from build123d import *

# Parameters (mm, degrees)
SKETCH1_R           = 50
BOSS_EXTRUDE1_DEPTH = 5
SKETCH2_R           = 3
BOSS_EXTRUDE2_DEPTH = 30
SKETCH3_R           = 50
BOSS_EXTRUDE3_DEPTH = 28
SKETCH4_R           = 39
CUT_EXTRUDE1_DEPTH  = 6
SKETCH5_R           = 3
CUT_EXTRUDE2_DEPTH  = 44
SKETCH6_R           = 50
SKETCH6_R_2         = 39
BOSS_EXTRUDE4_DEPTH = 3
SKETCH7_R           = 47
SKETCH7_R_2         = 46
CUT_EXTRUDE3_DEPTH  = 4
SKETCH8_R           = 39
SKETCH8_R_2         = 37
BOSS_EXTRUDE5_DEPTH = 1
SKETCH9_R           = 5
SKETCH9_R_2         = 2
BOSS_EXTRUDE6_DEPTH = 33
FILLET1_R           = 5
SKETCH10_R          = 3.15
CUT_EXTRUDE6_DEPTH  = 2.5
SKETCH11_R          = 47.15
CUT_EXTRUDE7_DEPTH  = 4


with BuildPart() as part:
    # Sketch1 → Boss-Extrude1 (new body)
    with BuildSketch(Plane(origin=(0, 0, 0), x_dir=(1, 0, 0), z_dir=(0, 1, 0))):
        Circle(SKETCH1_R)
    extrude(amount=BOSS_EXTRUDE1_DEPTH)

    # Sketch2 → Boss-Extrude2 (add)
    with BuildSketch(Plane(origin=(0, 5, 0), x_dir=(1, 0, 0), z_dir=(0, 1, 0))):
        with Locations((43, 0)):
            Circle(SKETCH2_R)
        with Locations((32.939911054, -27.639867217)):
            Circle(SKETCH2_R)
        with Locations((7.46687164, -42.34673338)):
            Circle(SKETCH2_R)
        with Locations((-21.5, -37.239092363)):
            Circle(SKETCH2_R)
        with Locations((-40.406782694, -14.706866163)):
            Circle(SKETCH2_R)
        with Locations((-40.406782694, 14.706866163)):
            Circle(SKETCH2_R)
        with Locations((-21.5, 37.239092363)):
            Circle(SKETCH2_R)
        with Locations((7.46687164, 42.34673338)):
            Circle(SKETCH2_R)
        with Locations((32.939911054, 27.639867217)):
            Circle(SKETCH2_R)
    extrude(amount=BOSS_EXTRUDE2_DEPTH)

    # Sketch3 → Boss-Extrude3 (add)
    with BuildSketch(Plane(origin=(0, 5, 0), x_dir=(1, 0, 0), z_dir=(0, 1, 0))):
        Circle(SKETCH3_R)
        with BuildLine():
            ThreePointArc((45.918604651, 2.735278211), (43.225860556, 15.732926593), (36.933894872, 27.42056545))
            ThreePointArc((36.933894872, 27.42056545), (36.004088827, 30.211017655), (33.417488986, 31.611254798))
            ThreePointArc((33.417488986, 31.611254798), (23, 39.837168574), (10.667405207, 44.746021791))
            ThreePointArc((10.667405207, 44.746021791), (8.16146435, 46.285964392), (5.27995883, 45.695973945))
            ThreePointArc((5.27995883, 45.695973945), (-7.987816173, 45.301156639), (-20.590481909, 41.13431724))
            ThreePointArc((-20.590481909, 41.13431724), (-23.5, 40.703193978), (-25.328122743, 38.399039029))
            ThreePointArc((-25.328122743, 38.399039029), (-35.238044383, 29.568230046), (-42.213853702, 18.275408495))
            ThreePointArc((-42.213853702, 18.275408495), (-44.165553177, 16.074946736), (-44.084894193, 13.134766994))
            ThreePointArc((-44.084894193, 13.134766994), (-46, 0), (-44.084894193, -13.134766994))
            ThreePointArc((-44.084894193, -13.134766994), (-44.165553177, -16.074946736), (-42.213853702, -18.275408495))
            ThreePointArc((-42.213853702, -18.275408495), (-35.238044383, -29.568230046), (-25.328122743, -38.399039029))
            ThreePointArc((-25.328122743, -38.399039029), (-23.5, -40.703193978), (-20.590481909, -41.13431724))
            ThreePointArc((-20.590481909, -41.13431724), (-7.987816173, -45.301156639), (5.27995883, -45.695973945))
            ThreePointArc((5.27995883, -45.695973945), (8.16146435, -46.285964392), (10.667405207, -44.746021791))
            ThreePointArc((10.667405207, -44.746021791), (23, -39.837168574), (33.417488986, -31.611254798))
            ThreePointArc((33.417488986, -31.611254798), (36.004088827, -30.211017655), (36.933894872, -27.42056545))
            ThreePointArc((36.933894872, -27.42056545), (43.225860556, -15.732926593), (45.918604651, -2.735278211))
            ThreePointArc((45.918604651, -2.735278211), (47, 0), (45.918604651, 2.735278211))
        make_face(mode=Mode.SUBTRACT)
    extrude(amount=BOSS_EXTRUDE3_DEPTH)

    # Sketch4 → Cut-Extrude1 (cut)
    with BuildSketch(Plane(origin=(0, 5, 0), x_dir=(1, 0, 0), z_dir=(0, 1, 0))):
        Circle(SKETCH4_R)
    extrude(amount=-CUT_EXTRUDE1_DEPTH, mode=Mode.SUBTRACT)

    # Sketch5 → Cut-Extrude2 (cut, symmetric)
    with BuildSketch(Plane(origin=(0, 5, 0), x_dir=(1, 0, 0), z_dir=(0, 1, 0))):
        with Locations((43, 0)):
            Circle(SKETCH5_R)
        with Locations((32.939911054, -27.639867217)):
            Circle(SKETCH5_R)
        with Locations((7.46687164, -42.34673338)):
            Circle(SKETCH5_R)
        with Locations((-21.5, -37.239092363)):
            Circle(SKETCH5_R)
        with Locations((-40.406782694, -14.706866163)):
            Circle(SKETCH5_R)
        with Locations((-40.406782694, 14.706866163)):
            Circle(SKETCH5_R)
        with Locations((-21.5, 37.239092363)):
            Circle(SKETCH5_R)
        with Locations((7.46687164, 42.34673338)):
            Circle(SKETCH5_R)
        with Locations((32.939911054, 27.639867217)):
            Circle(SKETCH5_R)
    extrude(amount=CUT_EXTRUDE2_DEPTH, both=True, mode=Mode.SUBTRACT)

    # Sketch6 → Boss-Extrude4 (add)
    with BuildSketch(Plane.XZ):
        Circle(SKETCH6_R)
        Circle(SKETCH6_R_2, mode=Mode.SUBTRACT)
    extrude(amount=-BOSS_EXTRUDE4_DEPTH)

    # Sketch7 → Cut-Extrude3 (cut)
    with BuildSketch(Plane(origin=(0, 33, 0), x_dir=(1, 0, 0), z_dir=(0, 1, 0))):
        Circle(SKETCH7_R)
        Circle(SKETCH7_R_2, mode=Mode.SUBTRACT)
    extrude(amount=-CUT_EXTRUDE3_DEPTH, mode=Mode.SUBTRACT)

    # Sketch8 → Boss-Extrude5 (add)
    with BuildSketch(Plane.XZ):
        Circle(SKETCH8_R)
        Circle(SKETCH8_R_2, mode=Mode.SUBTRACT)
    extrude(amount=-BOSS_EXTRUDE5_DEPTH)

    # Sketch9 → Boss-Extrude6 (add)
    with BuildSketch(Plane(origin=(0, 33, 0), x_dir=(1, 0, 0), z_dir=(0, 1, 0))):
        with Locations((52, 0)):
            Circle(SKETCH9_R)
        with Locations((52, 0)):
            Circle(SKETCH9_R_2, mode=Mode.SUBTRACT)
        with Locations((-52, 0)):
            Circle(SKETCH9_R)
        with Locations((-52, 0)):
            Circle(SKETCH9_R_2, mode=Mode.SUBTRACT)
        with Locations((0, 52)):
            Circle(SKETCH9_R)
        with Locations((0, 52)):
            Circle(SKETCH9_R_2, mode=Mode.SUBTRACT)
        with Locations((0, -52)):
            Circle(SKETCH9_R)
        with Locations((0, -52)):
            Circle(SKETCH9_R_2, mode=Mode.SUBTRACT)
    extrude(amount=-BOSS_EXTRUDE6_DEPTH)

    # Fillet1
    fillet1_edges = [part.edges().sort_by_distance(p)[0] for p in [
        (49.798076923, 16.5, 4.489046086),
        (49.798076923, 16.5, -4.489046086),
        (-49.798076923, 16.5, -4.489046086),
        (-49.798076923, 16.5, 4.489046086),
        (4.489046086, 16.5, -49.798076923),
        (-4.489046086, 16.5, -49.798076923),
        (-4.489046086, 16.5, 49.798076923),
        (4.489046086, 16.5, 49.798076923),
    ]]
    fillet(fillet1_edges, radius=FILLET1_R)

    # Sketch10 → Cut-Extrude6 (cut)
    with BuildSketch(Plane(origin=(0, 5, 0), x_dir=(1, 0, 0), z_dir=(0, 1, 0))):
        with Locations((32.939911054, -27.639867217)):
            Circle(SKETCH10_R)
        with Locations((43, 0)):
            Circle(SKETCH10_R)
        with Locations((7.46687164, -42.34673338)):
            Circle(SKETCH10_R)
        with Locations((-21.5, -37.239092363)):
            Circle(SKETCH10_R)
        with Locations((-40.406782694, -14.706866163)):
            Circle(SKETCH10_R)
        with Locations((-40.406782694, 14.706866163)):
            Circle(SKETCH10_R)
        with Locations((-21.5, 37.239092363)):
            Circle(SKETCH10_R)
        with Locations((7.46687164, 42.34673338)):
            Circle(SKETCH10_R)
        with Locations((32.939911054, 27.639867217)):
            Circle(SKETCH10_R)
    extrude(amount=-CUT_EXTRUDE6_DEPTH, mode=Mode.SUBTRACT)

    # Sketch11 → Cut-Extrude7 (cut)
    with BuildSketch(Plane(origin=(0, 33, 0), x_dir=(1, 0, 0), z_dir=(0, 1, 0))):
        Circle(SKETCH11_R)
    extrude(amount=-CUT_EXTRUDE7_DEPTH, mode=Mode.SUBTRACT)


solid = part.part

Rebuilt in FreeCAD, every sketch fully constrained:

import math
import FreeCAD as App
import Part
import Sketcher

V = App.Vector
Q = App.Units.Quantity


def edges_at(feature, points):
    """Names of the edges that pass closest to the given points."""
    edges = feature.Shape.Edges
    near = lambda p: min(range(len(edges)), key=lambda i: edges[i].distToShape(Part.Vertex(*p))[0])
    return sorted({f"Edge{near(p) + 1}" for p in points})

doc = App.newDocument("Part")
params = doc.addObject("Spreadsheet::Sheet", "Params")
for row, (alias, value) in enumerate([
    ("sketch1_diameter", "100 mm"),
    ("pad1_length", "5 mm"),
    ("sketch2_diameter", "6 mm"),
    ("pad2_length", "30 mm"),
    ("sketch3_diameter", "100 mm"),
    ("sketch3_radius", "46 mm"),
    ("sketch3_radius2", "4 mm"),
    ("pad3_length", "28 mm"),
    ("sketch4_diameter", "78 mm"),
    ("pocket1_length", "6 mm"),
    ("sketch5_diameter", "6 mm"),
    ("pocket2_length", "88 mm"),
    ("sketch6_diameter", "100 mm"),
    ("sketch6_diameter2", "78 mm"),
    ("pad4_length", "3 mm"),
    ("sketch7_diameter", "94 mm"),
    ("sketch7_diameter2", "92 mm"),
    ("pocket3_length", "4 mm"),
    ("sketch8_diameter", "78 mm"),
    ("sketch8_diameter2", "74 mm"),
    ("pad5_length", "1 mm"),
    ("sketch9_diameter", "10 mm"),
    ("sketch9_diameter2", "4 mm"),
    ("pad6_length", "33 mm"),
    ("fillet_radius", "5 mm"),
    ("sketch10_diameter", "6.3 mm"),
    ("pocket4_length", "2.5 mm"),
    ("sketch11_diameter", "94.3 mm"),
    ("pocket5_length", "4 mm"),
], start=1):
    params.set(f"A{row}", alias)
    params.set(f"B{row}", "=" + value)
    params.setAlias(f"B{row}", alias)

body = doc.addObject("PartDesign::Body", "Body")

sketch1 = body.newObject("Sketcher::SketchObject", "Sketch")
sketch1.AttachmentSupport = (doc.getObject("XZ_Plane"), [""])
sketch1.MapMode = "FlatFace"
sketch1.addGeometry(Part.Circle(V(0, 0, 0), V(0, 0, 1), 50), False)
sketch1.addConstraint([
    Sketcher.Constraint("Coincident", 0, 3, -1, 1),
    Sketcher.Constraint("Diameter", 0, Q("100 mm")),
])
sketch1.setExpression("Constraints[1]", "Params.sketch1_diameter")
pad1 = body.newObject("PartDesign::Pad", "Pad")
pad1.Profile = sketch1
pad1.setExpression("Length", "Params.pad1_length")
pad1.Reversed = True

sketch2 = body.newObject("Sketcher::SketchObject", "Sketch001")
sketch2.AttachmentSupport = (doc.getObject("XZ_Plane"), [""])
sketch2.MapMode = "FlatFace"
sketch2.AttachmentOffset = App.Placement(V(0, 0, -5), App.Rotation())
sketch2.addGeometry([
    Part.Circle(V(43, 0, 0), V(0, 0, 1), 3),
    Part.Circle(V(32.9, 27.6, 0), V(0, 0, 1), 3),
    Part.Circle(V(7.5, 42.3, 0), V(0, 0, 1), 3),
    Part.Circle(V(-21.5, 37.2, 0), V(0, 0, 1), 3),
    Part.Circle(V(-40.4, 14.7, 0), V(0, 0, 1), 3),
    Part.Circle(V(-40.4, -14.7, 0), V(0, 0, 1), 3),
    Part.Circle(V(-21.5, -37.2, 0), V(0, 0, 1), 3),
    Part.Circle(V(7.5, -42.3, 0), V(0, 0, 1), 3),
    Part.Circle(V(32.9, -27.6, 0), V(0, 0, 1), 3),
], False)
sketch2.addConstraint([
    Sketcher.Constraint("Equal", 0, 1),
    Sketcher.Constraint("Equal", 1, 2),
    Sketcher.Constraint("Equal", 2, 3),
    Sketcher.Constraint("Equal", 3, 4),
    Sketcher.Constraint("Equal", 4, 5),
    Sketcher.Constraint("Equal", 5, 6),
    Sketcher.Constraint("Equal", 6, 7),
    Sketcher.Constraint("Equal", 7, 8),
    Sketcher.Constraint("Symmetric", 4, 3, 5, 3, -1),
    Sketcher.Constraint("Symmetric", 3, 3, 6, 3, -1),
    Sketcher.Constraint("Symmetric", 2, 3, 7, 3, -1),
    Sketcher.Constraint("Symmetric", 1, 3, 8, 3, -1),
    Sketcher.Constraint("PointOnObject", 0, 3, -1),
    Sketcher.Constraint("Diameter", 0, Q("6 mm")),
    Sketcher.Constraint("DistanceX", -1, 1, 0, 3, Q("43 mm")),
    Sketcher.Constraint("DistanceX", 3, 3, -1, 1, Q("21.5 mm")),
    Sketcher.Constraint("DistanceY", 4, 3, 1, 3, Q("12.933001 mm")),
    Sketcher.Constraint("DistanceY", 5, 3, 2, 3, Q("57.0536 mm")),
    Sketcher.Constraint("DistanceX", -1, 1, 1, 3, Q("32.939911 mm")),
    Sketcher.Constraint("DistanceX", -1, 1, 2, 3, Q("7.466872 mm")),
    Sketcher.Constraint("DistanceY", 3, 3, 2, 3, Q("5.107641 mm")),
    Sketcher.Constraint("DistanceY", -1, 1, 1, 3, Q("27.639867 mm")),
    Sketcher.Constraint("DistanceX", 4, 3, -1, 1, Q("40.406783 mm")),
])
sketch2.setExpression("Constraints[13]", "Params.sketch2_diameter")
pad2 = body.newObject("PartDesign::Pad", "Pad001")
pad2.Profile = sketch2
pad2.setExpression("Length", "Params.pad2_length")
pad2.Reversed = True

sketch3 = body.newObject("Sketcher::SketchObject", "Sketch002")
sketch3.AttachmentSupport = (doc.getObject("XZ_Plane"), [""])
sketch3.MapMode = "FlatFace"
sketch3.AttachmentOffset = App.Placement(V(0, 0, -5), App.Rotation())
sketch3.addGeometry([
    Part.Circle(V(0, 0, 0), V(0, 0, 1), 50),
    Part.ArcOfCircle(Part.Circle(V(0, 0, 0), V(0, 0, 1), 46), math.radians(-37), math.radians(-3)),
    Part.ArcOfCircle(Part.Circle(V(43, 0, 0), V(0, 0, 1), 4), math.radians(-43), math.radians(43)),
    Part.ArcOfCircle(Part.Circle(V(0, 0, 0), V(0, 0, 1), 46), math.radians(3), math.radians(37)),
    Part.ArcOfCircle(Part.Circle(V(32.9, 27.6, 0), V(0, 0, 1), 4), math.radians(-3), math.radians(83)),
    Part.ArcOfCircle(Part.Circle(V(0, 0, 0), V(0, 0, 1), 46), math.radians(43), math.radians(77)),
    Part.ArcOfCircle(Part.Circle(V(7.5, 42.3, 0), V(0, 0, 1), 4), math.radians(37), math.radians(123)),
    Part.ArcOfCircle(Part.Circle(V(0, 0, 0), V(0, 0, 1), 46), math.radians(83), math.radians(117)),
    Part.ArcOfCircle(Part.Circle(V(-21.5, 37.2, 0), V(0, 0, 1), 4), math.radians(77), math.radians(163)),
    Part.ArcOfCircle(Part.Circle(V(0, 0, 0), V(0, 0, 1), 46), math.radians(123), math.radians(157)),
    Part.ArcOfCircle(Part.Circle(V(-40.4, 14.7, 0), V(0, 0, 1), 4), math.radians(117), math.radians(203)),
    Part.ArcOfCircle(Part.Circle(V(0, 0, 0), V(0, 0, 1), 46), math.radians(163), math.radians(197)),
    Part.ArcOfCircle(Part.Circle(V(-40.4, -14.7, 0), V(0, 0, 1), 4), math.radians(157), math.radians(243)),
    Part.ArcOfCircle(Part.Circle(V(0, 0, 0), V(0, 0, 1), 46), math.radians(-157), math.radians(-123)),
    Part.ArcOfCircle(Part.Circle(V(-21.5, -37.2, 0), V(0, 0, 1), 4), math.radians(-163), math.radians(-77)),
    Part.ArcOfCircle(Part.Circle(V(0, 0, 0), V(0, 0, 1), 46), math.radians(-117), math.radians(-83)),
    Part.ArcOfCircle(Part.Circle(V(7.5, -42.3, 0), V(0, 0, 1), 4), math.radians(-123), math.radians(-37)),
    Part.ArcOfCircle(Part.Circle(V(0, 0, 0), V(0, 0, 1), 46), math.radians(-77), math.radians(-43)),
    Part.ArcOfCircle(Part.Circle(V(32.9, -27.6, 0), V(0, 0, 1), 4), math.radians(-83), math.radians(3)),
], False)
sketch3.addConstraint([
    Sketcher.Constraint("Coincident", 1, 2, 2, 1),
    Sketcher.Constraint("Coincident", 2, 2, 3, 1),
    Sketcher.Constraint("Coincident", 3, 2, 4, 1),
    Sketcher.Constraint("Coincident", 4, 2, 5, 1),
    Sketcher.Constraint("Coincident", 5, 2, 6, 1),
    Sketcher.Constraint("Coincident", 6, 2, 7, 1),
    Sketcher.Constraint("Coincident", 7, 2, 8, 1),
    Sketcher.Constraint("Coincident", 8, 2, 9, 1),
    Sketcher.Constraint("Coincident", 9, 2, 10, 1),
    Sketcher.Constraint("Coincident", 10, 2, 11, 1),
    Sketcher.Constraint("Coincident", 11, 2, 12, 1),
    Sketcher.Constraint("Coincident", 12, 2, 13, 1),
    Sketcher.Constraint("Coincident", 13, 2, 14, 1),
    Sketcher.Constraint("Coincident", 14, 2, 15, 1),
    Sketcher.Constraint("Coincident", 15, 2, 16, 1),
    Sketcher.Constraint("Coincident", 16, 2, 17, 1),
    Sketcher.Constraint("Coincident", 17, 2, 18, 1),
    Sketcher.Constraint("Coincident", 18, 2, 1, 1),
    Sketcher.Constraint("Coincident", 0, 3, -1, 1),
    Sketcher.Constraint("Coincident", 1, 3, -1, 1),
    Sketcher.Constraint("Coincident", 3, 3, -1, 1),
    Sketcher.Constraint("Coincident", 5, 3, -1, 1),
    Sketcher.Constraint("Coincident", 7, 3, -1, 1),
    Sketcher.Constraint("Coincident", 9, 3, -1, 1),
    Sketcher.Constraint("Coincident", 11, 3, -1, 1),
    Sketcher.Constraint("Coincident", 13, 3, -1, 1),
    Sketcher.Constraint("Coincident", 15, 3, -1, 1),
    Sketcher.Constraint("Coincident", 17, 3, -1, 1),
    Sketcher.Constraint("Equal", 1, 3),
    Sketcher.Constraint("Equal", 2, 4),
    Sketcher.Constraint("Equal", 3, 5),
    Sketcher.Constraint("Equal", 4, 6),
    Sketcher.Constraint("Equal", 5, 7),
    Sketcher.Constraint("Equal", 6, 8),
    Sketcher.Constraint("Equal", 7, 9),
    Sketcher.Constraint("Equal", 8, 10),
    Sketcher.Constraint("Equal", 9, 11),
    Sketcher.Constraint("Equal", 10, 12),
    Sketcher.Constraint("Equal", 11, 13),
    Sketcher.Constraint("Equal", 12, 14),
    Sketcher.Constraint("Equal", 13, 15),
    Sketcher.Constraint("Equal", 14, 16),
    Sketcher.Constraint("Equal", 15, 17),
    Sketcher.Constraint("Equal", 16, 18),
    Sketcher.Constraint("Symmetric", 10, 3, 12, 3, -1),
    Sketcher.Constraint("Symmetric", 8, 3, 14, 3, -1),
    Sketcher.Constraint("Symmetric", 6, 3, 16, 3, -1),
    Sketcher.Constraint("Symmetric", 4, 3, 18, 3, -1),
    Sketcher.Constraint("PointOnObject", 2, 3, -1),
    Sketcher.Constraint("Diameter", 0, Q("100 mm")),
    Sketcher.Constraint("Radius", 1, Q("46 mm")),
    Sketcher.Constraint("Radius", 2, Q("4 mm")),
    Sketcher.Constraint("DistanceX", -1, 1, 2, 3, Q("43 mm")),
    Sketcher.Constraint("DistanceX", 8, 3, -1, 1, Q("21.5 mm")),
    Sketcher.Constraint("DistanceY", 3, 2, 4, 3, Q("0.219302 mm")),
    Sketcher.Constraint("DistanceX", 10, 3, 7, 2, Q("19.816301 mm")),
    Sketcher.Constraint("DistanceY", 10, 2, 10, 3, Q("1.572099 mm")),
    Sketcher.Constraint("DistanceX", -1, 1, 4, 3, Q("32.939911 mm")),
    Sketcher.Constraint("DistanceX", -1, 1, 6, 3, Q("7.466872 mm")),
    Sketcher.Constraint("DistanceY", -1, 1, 5, 2, Q("44.746022 mm")),
    Sketcher.Constraint("DistanceX", 7, 2, -1, 1, Q("20.590482 mm")),
])
sketch3.setExpression("Constraints[49]", "Params.sketch3_diameter")
sketch3.setExpression("Constraints[50]", "Params.sketch3_radius")
sketch3.setExpression("Constraints[51]", "Params.sketch3_radius2")
pad3 = body.newObject("PartDesign::Pad", "Pad002")
pad3.Profile = sketch3
pad3.setExpression("Length", "Params.pad3_length")
pad3.Reversed = True

sketch4 = body.newObject("Sketcher::SketchObject", "Sketch003")
sketch4.AttachmentSupport = (doc.getObject("XZ_Plane"), [""])
sketch4.MapMode = "FlatFace"
sketch4.AttachmentOffset = App.Placement(V(0, 0, -5), App.Rotation())
sketch4.addGeometry(Part.Circle(V(0, 0, 0), V(0, 0, 1), 39), False)
sketch4.addConstraint([
    Sketcher.Constraint("Coincident", 0, 3, -1, 1),
    Sketcher.Constraint("Diameter", 0, Q("78 mm")),
])
sketch4.setExpression("Constraints[1]", "Params.sketch4_diameter")
pocket1 = body.newObject("PartDesign::Pocket", "Pocket")
pocket1.Profile = sketch4
pocket1.setExpression("Length", "Params.pocket1_length")
pocket1.Reversed = True

sketch5 = body.newObject("Sketcher::SketchObject", "Sketch004")
sketch5.AttachmentSupport = (doc.getObject("XZ_Plane"), [""])
sketch5.MapMode = "FlatFace"
sketch5.AttachmentOffset = App.Placement(V(0, 0, -5), App.Rotation())
sketch5.addGeometry([
    Part.Circle(V(43, 0, 0), V(0, 0, 1), 3),
    Part.Circle(V(32.9, 27.6, 0), V(0, 0, 1), 3),
    Part.Circle(V(7.5, 42.3, 0), V(0, 0, 1), 3),
    Part.Circle(V(-21.5, 37.2, 0), V(0, 0, 1), 3),
    Part.Circle(V(-40.4, 14.7, 0), V(0, 0, 1), 3),
    Part.Circle(V(-40.4, -14.7, 0), V(0, 0, 1), 3),
    Part.Circle(V(-21.5, -37.2, 0), V(0, 0, 1), 3),
    Part.Circle(V(7.5, -42.3, 0), V(0, 0, 1), 3),
    Part.Circle(V(32.9, -27.6, 0), V(0, 0, 1), 3),
], False)
sketch5.addConstraint([
    Sketcher.Constraint("Equal", 0, 1),
    Sketcher.Constraint("Equal", 1, 2),
    Sketcher.Constraint("Equal", 2, 3),
    Sketcher.Constraint("Equal", 3, 4),
    Sketcher.Constraint("Equal", 4, 5),
    Sketcher.Constraint("Equal", 5, 6),
    Sketcher.Constraint("Equal", 6, 7),
    Sketcher.Constraint("Equal", 7, 8),
    Sketcher.Constraint("Symmetric", 4, 3, 5, 3, -1),
    Sketcher.Constraint("Symmetric", 3, 3, 6, 3, -1),
    Sketcher.Constraint("Symmetric", 2, 3, 7, 3, -1),
    Sketcher.Constraint("Symmetric", 1, 3, 8, 3, -1),
    Sketcher.Constraint("PointOnObject", 0, 3, -1),
    Sketcher.Constraint("Diameter", 0, Q("6 mm")),
    Sketcher.Constraint("DistanceX", -1, 1, 0, 3, Q("43 mm")),
    Sketcher.Constraint("DistanceX", 3, 3, -1, 1, Q("21.5 mm")),
    Sketcher.Constraint("DistanceY", 4, 3, 1, 3, Q("12.933001 mm")),
    Sketcher.Constraint("DistanceY", 5, 3, 2, 3, Q("57.0536 mm")),
    Sketcher.Constraint("DistanceX", -1, 1, 1, 3, Q("32.939911 mm")),
    Sketcher.Constraint("DistanceX", -1, 1, 2, 3, Q("7.466872 mm")),
    Sketcher.Constraint("DistanceY", 3, 3, 2, 3, Q("5.107641 mm")),
    Sketcher.Constraint("DistanceY", -1, 1, 1, 3, Q("27.639867 mm")),
    Sketcher.Constraint("DistanceX", 4, 3, -1, 1, Q("40.406783 mm")),
])
sketch5.setExpression("Constraints[13]", "Params.sketch5_diameter")
pocket2 = body.newObject("PartDesign::Pocket", "Pocket001")
pocket2.Profile = sketch5
pocket2.setExpression("Length", "Params.pocket2_length")
pocket2.Midplane = True

sketch6 = body.newObject("Sketcher::SketchObject", "Sketch005")
sketch6.AttachmentSupport = (doc.getObject("XZ_Plane"), [""])
sketch6.MapMode = "FlatFace"
sketch6.addGeometry([
    Part.Circle(V(0, 0, 0), V(0, 0, 1), 50),
    Part.Circle(V(0, 0, 0), V(0, 0, 1), 39),
], False)
sketch6.addConstraint([
    Sketcher.Constraint("Coincident", 0, 3, -1, 1),
    Sketcher.Constraint("Coincident", 1, 3, -1, 1),
    Sketcher.Constraint("Diameter", 0, Q("100 mm")),
    Sketcher.Constraint("Diameter", 1, Q("78 mm")),
])
sketch6.setExpression("Constraints[2]", "Params.sketch6_diameter")
sketch6.setExpression("Constraints[3]", "Params.sketch6_diameter2")
pad4 = body.newObject("PartDesign::Pad", "Pad003")
pad4.Profile = sketch6
pad4.setExpression("Length", "Params.pad4_length")
pad4.Reversed = True

sketch7 = body.newObject("Sketcher::SketchObject", "Sketch006")
sketch7.AttachmentSupport = (doc.getObject("XZ_Plane"), [""])
sketch7.MapMode = "FlatFace"
sketch7.AttachmentOffset = App.Placement(V(0, 0, -33), App.Rotation())
sketch7.addGeometry([
    Part.Circle(V(0, 0, 0), V(0, 0, 1), 47),
    Part.Circle(V(0, 0, 0), V(0, 0, 1), 46),
], False)
sketch7.addConstraint([
    Sketcher.Constraint("Coincident", 0, 3, -1, 1),
    Sketcher.Constraint("Coincident", 1, 3, -1, 1),
    Sketcher.Constraint("Diameter", 0, Q("94 mm")),
    Sketcher.Constraint("Diameter", 1, Q("92 mm")),
])
sketch7.setExpression("Constraints[2]", "Params.sketch7_diameter")
sketch7.setExpression("Constraints[3]", "Params.sketch7_diameter2")
pocket3 = body.newObject("PartDesign::Pocket", "Pocket002")
pocket3.Profile = sketch7
pocket3.setExpression("Length", "Params.pocket3_length")
pocket3.Reversed = True

sketch8 = body.newObject("Sketcher::SketchObject", "Sketch007")
sketch8.AttachmentSupport = (doc.getObject("XZ_Plane"), [""])
sketch8.MapMode = "FlatFace"
sketch8.addGeometry([
    Part.Circle(V(0, 0, 0), V(0, 0, 1), 39),
    Part.Circle(V(0, 0, 0), V(0, 0, 1), 37),
], False)
sketch8.addConstraint([
    Sketcher.Constraint("Coincident", 0, 3, -1, 1),
    Sketcher.Constraint("Coincident", 1, 3, -1, 1),
    Sketcher.Constraint("Diameter", 0, Q("78 mm")),
    Sketcher.Constraint("Diameter", 1, Q("74 mm")),
])
sketch8.setExpression("Constraints[2]", "Params.sketch8_diameter")
sketch8.setExpression("Constraints[3]", "Params.sketch8_diameter2")
pad5 = body.newObject("PartDesign::Pad", "Pad004")
pad5.Profile = sketch8
pad5.setExpression("Length", "Params.pad5_length")
pad5.Reversed = True

sketch9 = body.newObject("Sketcher::SketchObject", "Sketch008")
sketch9.AttachmentSupport = (doc.getObject("XZ_Plane"), [""])
sketch9.MapMode = "FlatFace"
sketch9.AttachmentOffset = App.Placement(V(0, 0, -33), App.Rotation())
sketch9.addGeometry([
    Part.Circle(V(52, 0, 0), V(0, 0, 1), 5),
    Part.Circle(V(52, 0, 0), V(0, 0, 1), 2),
    Part.Circle(V(-52, 0, 0), V(0, 0, 1), 5),
    Part.Circle(V(-52, 0, 0), V(0, 0, 1), 2),
    Part.Circle(V(0, -52, 0), V(0, 0, 1), 5),
    Part.Circle(V(0, -52, 0), V(0, 0, 1), 2),
    Part.Circle(V(0, 52, 0), V(0, 0, 1), 5),
    Part.Circle(V(0, 52, 0), V(0, 0, 1), 2),
], False)
sketch9.addConstraint([
    Sketcher.Constraint("Coincident", 1, 3, 0, 3),
    Sketcher.Constraint("Coincident", 3, 3, 2, 3),
    Sketcher.Constraint("Coincident", 5, 3, 4, 3),
    Sketcher.Constraint("Coincident", 7, 3, 6, 3),
    Sketcher.Constraint("Equal", 0, 2),
    Sketcher.Constraint("Equal", 1, 3),
    Sketcher.Constraint("Equal", 2, 4),
    Sketcher.Constraint("Equal", 3, 5),
    Sketcher.Constraint("Equal", 4, 6),
    Sketcher.Constraint("Equal", 5, 7),
    Sketcher.Constraint("Symmetric", 0, 3, 2, 3, -1, 1),
    Sketcher.Constraint("Symmetric", 4, 3, 6, 3, -1, 1),
    Sketcher.Constraint("PointOnObject", 0, 3, -1),
    Sketcher.Constraint("PointOnObject", 4, 3, -2),
    Sketcher.Constraint("Diameter", 0, Q("10 mm")),
    Sketcher.Constraint("Diameter", 1, Q("4 mm")),
    Sketcher.Constraint("DistanceX", -1, 1, 0, 3, Q("52 mm")),
    Sketcher.Constraint("DistanceY", 4, 3, -1, 1, Q("52 mm")),
])
sketch9.setExpression("Constraints[14]", "Params.sketch9_diameter")
sketch9.setExpression("Constraints[15]", "Params.sketch9_diameter2")
pad6 = body.newObject("PartDesign::Pad", "Pad005")
pad6.Profile = sketch9
pad6.setExpression("Length", "Params.pad6_length")
doc.recompute()

fillet = body.newObject("PartDesign::Fillet", "Fillet")
fillet.Base = (pad6, edges_at(pad6, [
    (49.798, 16.5, 4.489),
    (49.798, 16.5, -4.489),
    (-49.798, 16.5, -4.489),
    (-49.798, 16.5, 4.489),
    (4.489, 16.5, -49.798),
    (-4.489, 16.5, -49.798),
    (-4.489, 16.5, 49.798),
    (4.489, 16.5, 49.798),
]))
fillet.setExpression("Radius", "Params.fillet_radius")

sketch10 = body.newObject("Sketcher::SketchObject", "Sketch009")
sketch10.AttachmentSupport = (doc.getObject("XZ_Plane"), [""])
sketch10.MapMode = "FlatFace"
sketch10.AttachmentOffset = App.Placement(V(0, 0, -5), App.Rotation())
sketch10.addGeometry([
    Part.Circle(V(32.9, 27.6, 0), V(0, 0, 1), 3.1),
    Part.Circle(V(43, 0, 0), V(0, 0, 1), 3.1),
    Part.Circle(V(7.5, 42.3, 0), V(0, 0, 1), 3.1),
    Part.Circle(V(-21.5, 37.2, 0), V(0, 0, 1), 3.1),
    Part.Circle(V(-40.4, 14.7, 0), V(0, 0, 1), 3.1),
    Part.Circle(V(-40.4, -14.7, 0), V(0, 0, 1), 3.1),
    Part.Circle(V(-21.5, -37.2, 0), V(0, 0, 1), 3.1),
    Part.Circle(V(7.5, -42.3, 0), V(0, 0, 1), 3.1),
    Part.Circle(V(32.9, -27.6, 0), V(0, 0, 1), 3.1),
], False)
sketch10.addConstraint([
    Sketcher.Constraint("Equal", 0, 1),
    Sketcher.Constraint("Equal", 1, 2),
    Sketcher.Constraint("Equal", 2, 3),
    Sketcher.Constraint("Equal", 3, 4),
    Sketcher.Constraint("Equal", 4, 5),
    Sketcher.Constraint("Equal", 5, 6),
    Sketcher.Constraint("Equal", 6, 7),
    Sketcher.Constraint("Equal", 7, 8),
    Sketcher.Constraint("Symmetric", 4, 3, 5, 3, -1),
    Sketcher.Constraint("Symmetric", 3, 3, 6, 3, -1),
    Sketcher.Constraint("Symmetric", 2, 3, 7, 3, -1),
    Sketcher.Constraint("Symmetric", 0, 3, 8, 3, -1),
    Sketcher.Constraint("PointOnObject", 1, 3, -1),
    Sketcher.Constraint("Diameter", 0, Q("6.3 mm")),
    Sketcher.Constraint("DistanceX", -1, 1, 1, 3, Q("43 mm")),
    Sketcher.Constraint("DistanceX", 3, 3, -1, 1, Q("21.5 mm")),
    Sketcher.Constraint("DistanceY", 4, 3, 0, 3, Q("12.933001 mm")),
    Sketcher.Constraint("DistanceY", 5, 3, 2, 3, Q("57.0536 mm")),
    Sketcher.Constraint("DistanceX", -1, 1, 0, 3, Q("32.939911 mm")),
    Sketcher.Constraint("DistanceX", -1, 1, 2, 3, Q("7.466872 mm")),
    Sketcher.Constraint("DistanceY", 3, 3, 2, 3, Q("5.107641 mm")),
    Sketcher.Constraint("DistanceY", -1, 1, 0, 3, Q("27.639867 mm")),
    Sketcher.Constraint("DistanceX", 4, 3, -1, 1, Q("40.406783 mm")),
])
sketch10.setExpression("Constraints[13]", "Params.sketch10_diameter")
pocket4 = body.newObject("PartDesign::Pocket", "Pocket003")
pocket4.Profile = sketch10
pocket4.setExpression("Length", "Params.pocket4_length")
pocket4.Reversed = True

sketch11 = body.newObject("Sketcher::SketchObject", "Sketch010")
sketch11.AttachmentSupport = (doc.getObject("XZ_Plane"), [""])
sketch11.MapMode = "FlatFace"
sketch11.AttachmentOffset = App.Placement(V(0, 0, -33), App.Rotation())
sketch11.addGeometry(Part.Circle(V(0, 0, 0), V(0, 0, 1), 47), False)
sketch11.addConstraint([
    Sketcher.Constraint("Coincident", 0, 3, -1, 1),
    Sketcher.Constraint("Diameter", 0, Q("94.3 mm")),
])
sketch11.setExpression("Constraints[1]", "Params.sketch11_diameter")
pocket5 = body.newObject("PartDesign::Pocket", "Pocket004")
pocket5.Profile = sketch11
pocket5.setExpression("Length", "Params.pocket5_length")
pocket5.Reversed = True

doc.recompute()
